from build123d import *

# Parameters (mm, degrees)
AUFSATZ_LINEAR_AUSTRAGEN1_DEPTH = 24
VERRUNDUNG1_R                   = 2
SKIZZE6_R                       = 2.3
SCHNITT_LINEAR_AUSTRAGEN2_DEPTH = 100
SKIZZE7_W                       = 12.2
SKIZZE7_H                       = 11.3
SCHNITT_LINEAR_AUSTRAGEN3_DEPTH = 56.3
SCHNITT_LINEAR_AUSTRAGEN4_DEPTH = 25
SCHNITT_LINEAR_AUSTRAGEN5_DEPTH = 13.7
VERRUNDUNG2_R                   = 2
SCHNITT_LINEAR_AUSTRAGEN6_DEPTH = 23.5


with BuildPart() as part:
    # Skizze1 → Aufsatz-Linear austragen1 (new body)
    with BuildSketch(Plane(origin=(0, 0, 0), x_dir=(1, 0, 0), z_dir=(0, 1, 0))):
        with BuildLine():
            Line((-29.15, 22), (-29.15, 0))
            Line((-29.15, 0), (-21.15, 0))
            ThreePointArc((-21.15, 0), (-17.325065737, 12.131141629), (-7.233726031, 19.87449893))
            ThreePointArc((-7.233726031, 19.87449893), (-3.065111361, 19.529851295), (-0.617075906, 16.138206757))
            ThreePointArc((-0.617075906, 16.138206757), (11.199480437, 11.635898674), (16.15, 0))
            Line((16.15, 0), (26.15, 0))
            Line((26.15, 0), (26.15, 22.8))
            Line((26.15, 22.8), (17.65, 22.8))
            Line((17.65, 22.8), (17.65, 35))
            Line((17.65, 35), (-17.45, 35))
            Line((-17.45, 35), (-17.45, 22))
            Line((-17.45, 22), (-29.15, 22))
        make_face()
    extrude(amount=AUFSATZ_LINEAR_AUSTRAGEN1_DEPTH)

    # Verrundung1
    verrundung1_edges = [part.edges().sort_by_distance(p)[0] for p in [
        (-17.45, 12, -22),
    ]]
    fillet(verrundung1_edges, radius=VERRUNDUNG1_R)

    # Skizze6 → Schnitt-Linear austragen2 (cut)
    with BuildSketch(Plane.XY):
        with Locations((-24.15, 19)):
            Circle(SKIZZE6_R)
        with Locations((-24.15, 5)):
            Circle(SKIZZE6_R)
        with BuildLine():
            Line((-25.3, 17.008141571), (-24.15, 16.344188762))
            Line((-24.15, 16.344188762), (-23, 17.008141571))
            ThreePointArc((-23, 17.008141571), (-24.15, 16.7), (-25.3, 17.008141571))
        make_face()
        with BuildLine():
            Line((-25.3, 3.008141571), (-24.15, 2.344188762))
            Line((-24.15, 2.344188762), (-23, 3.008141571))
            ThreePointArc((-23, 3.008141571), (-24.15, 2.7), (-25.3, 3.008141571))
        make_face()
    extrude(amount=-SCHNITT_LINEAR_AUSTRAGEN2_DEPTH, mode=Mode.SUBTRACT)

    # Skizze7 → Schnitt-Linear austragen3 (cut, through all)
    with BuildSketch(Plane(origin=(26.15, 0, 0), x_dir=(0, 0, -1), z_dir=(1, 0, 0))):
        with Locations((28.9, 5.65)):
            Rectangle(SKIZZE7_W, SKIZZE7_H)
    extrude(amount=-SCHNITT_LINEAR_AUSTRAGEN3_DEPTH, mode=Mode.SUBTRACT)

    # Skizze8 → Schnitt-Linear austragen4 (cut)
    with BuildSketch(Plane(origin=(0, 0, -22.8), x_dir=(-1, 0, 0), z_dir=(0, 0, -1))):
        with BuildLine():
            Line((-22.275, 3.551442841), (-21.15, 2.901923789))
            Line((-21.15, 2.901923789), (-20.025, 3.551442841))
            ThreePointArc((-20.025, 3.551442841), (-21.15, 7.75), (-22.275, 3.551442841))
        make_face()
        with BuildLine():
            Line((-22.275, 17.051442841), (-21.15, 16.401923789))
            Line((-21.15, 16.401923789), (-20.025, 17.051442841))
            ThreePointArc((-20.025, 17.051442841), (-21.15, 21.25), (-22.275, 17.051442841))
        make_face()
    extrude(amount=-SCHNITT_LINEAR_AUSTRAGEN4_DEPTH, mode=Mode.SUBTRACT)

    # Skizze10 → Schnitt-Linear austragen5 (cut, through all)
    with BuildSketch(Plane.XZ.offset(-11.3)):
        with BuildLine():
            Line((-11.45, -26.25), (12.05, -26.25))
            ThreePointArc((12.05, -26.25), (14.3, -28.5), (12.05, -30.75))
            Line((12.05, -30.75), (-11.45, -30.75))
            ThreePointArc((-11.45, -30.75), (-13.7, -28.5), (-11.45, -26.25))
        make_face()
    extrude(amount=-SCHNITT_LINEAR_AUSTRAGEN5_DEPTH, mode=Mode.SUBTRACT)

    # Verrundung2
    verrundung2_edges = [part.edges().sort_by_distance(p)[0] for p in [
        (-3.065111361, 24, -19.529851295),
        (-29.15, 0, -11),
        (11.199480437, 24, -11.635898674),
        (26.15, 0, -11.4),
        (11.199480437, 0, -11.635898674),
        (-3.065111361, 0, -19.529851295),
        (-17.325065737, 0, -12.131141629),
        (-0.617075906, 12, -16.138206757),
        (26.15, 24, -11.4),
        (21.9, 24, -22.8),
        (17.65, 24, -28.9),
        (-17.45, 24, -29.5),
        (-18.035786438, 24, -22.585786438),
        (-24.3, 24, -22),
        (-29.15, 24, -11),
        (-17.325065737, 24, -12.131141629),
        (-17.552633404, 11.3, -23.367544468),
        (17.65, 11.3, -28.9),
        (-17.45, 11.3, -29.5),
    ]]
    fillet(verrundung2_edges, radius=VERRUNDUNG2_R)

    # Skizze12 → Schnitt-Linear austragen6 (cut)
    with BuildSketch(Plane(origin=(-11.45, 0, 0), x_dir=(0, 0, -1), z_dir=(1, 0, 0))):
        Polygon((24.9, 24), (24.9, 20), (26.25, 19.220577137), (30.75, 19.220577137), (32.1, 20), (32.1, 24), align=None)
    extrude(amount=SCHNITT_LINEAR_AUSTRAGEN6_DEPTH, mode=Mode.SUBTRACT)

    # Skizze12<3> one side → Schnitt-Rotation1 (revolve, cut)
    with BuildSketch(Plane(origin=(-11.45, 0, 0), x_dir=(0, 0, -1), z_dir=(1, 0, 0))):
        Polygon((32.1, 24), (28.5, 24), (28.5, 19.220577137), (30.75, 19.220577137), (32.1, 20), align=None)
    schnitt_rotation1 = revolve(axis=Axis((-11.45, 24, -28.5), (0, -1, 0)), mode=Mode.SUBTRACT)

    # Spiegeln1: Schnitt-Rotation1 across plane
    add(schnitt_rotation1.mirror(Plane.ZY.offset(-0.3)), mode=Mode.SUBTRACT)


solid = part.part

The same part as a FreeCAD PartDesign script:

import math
import FreeCAD as App
import Part
import Sketcher

V = App.Vector
Q = App.Units.Quantity


def edges_at(feature, points):
    """Names of the edges that pass closest to the given points."""
    edges = feature.Shape.Edges
    near = lambda p: min(range(len(edges)), key=lambda i: edges[i].distToShape(Part.Vertex(*p))[0])
    return sorted({f"Edge{near(p) + 1}" for p in points})

doc = App.newDocument("Part")
body = doc.addObject("PartDesign::Body", "Body")

# Sketch on XZ plane
sketch1 = body.newObject("Sketcher::SketchObject", "Sketch")
sketch1.AttachmentSupport = (doc.getObject("XZ_Plane"), [""])
sketch1.MapMode = "FlatFace"
sketch1.addGeometry([
    Part.LineSegment(V(-29.15, -22, 0), V(-29.15, 0, 0)),  # 0
    Part.LineSegment(V(-29.15, 0, 0), V(-21.15, 0, 0)),  # 1
    Part.ArcOfCircle(Part.Circle(V(0, 0, 0), V(0, 0, 1), 21.15), math.radians(180), math.radians(250)),  # 2
    Part.ArcOfCircle(Part.Circle(V(-5.523625, -15.176036, 0), V(0, 0, 1), 5), math.radians(-110), math.radians(-11.094875)),  # 3
    Part.ArcOfCircle(Part.Circle(V(0, 0, 0), V(0, 0, 1), 16.15), math.radians(-92.189749), math.radians(0)),  # 4
    Part.LineSegment(V(16.15, 0, 0), V(26.15, 0, 0)),  # 5
    Part.LineSegment(V(26.15, 0, 0), V(26.15, -22.8, 0)),  # 6
    Part.LineSegment(V(26.15, -22.8, 0), V(17.65, -22.8, 0)),  # 7
    Part.LineSegment(V(17.65, -22.8, 0), V(17.65, -35, 0)),  # 8
    Part.LineSegment(V(17.65, -35, 0), V(-17.45, -35, 0)),  # 9
    Part.LineSegment(V(-17.45, -35, 0), V(-17.45, -22, 0)),  # 10
    Part.LineSegment(V(-17.45, -22, 0), V(-29.15, -22, 0)),  # 11
], False)
sketch1.addConstraint([
    Sketcher.Constraint("Coincident", 0, 2, 1, 1),
    Sketcher.Constraint("Coincident", 1, 2, 2, 1),
    Sketcher.Constraint("Tangent", 2, 2, 3, 1),
    Sketcher.Constraint("Coincident", 3, 2, 4, 1),
    Sketcher.Constraint("Coincident", 4, 2, 5, 1),
    Sketcher.Constraint("Coincident", 5, 2, 6, 1),
    Sketcher.Constraint("Coincident", 6, 2, 7, 1),
    Sketcher.Constraint("Coincident", 7, 2, 8, 1),
    Sketcher.Constraint("Coincident", 8, 2, 9, 1),
    Sketcher.Constraint("Coincident", 9, 2, 10, 1),
    Sketcher.Constraint("Coincident", 10, 2, 11, 1),
    Sketcher.Constraint("Coincident", 11, 2, 0, 1),
    Sketcher.Constraint("Vertical", 0),
    Sketcher.Constraint("Horizontal", 1),
    Sketcher.Constraint("Horizontal", 5),
    Sketcher.Constraint("Vertical", 6),
    Sketcher.Constraint("Horizontal", 7),
    Sketcher.Constraint("Vertical", 8),
    Sketcher.Constraint("Horizontal", 9),
    Sketcher.Constraint("Vertical", 10),
    Sketcher.Constraint("Horizontal", 11),
    Sketcher.Constraint("Coincident", 2, 3, -1, 1),
    Sketcher.Constraint("Coincident", 4, 3, -1, 1),
    Sketcher.Constraint("PointOnObject", 0, 2, -1),
    Sketcher.Constraint("PointOnObject", 4, 2, -1),
    Sketcher.Constraint("Radius", 3, 5.0),
    Sketcher.Constraint("DistanceX", 1, 1, 1, 2, 8.0),
    Sketcher.Constraint("DistanceX", 5, 1, 5, 2, 10.0),
    Sketcher.Constraint("DistanceY", 0, 1, 0, 2, 22.0),
    Sketcher.Constraint("DistanceY", 10, 1, 10, 2, 13.0),
    Sketcher.Constraint("Radius", 2, 21.15),
    Sketcher.Constraint("Radius", 4, 16.15),
    Sketcher.Constraint("DistanceX", 7, 2, 7, 1, 8.5),
    Sketcher.Constraint("DistanceX", 9, 2, 9, 1, 35.1),
    Sketcher.Constraint("DistanceY", 6, 2, 6, 1, 22.8),
    Sketcher.Constraint("DistanceY", 2, 2, -1, 1, 19.874499),
])
pad1 = body.newObject("PartDesign::Pad", "Pad")
pad1.Profile = sketch1
pad1.Length = 24
pad1.Reversed = True
doc.recompute()

fillet = body.newObject("PartDesign::Fillet", "Fillet")
fillet.Base = (pad1, edges_at(pad1, [(-17.45, 12, -22)]))
fillet.Radius = 2

# Sketch on XY plane
sketch2 = body.newObject("Sketcher::SketchObject", "Sketch001")
sketch2.AttachmentSupport = (doc.getObject("XY_Plane"), [""])
sketch2.MapMode = "FlatFace"
sketch2.addGeometry([
    Part.LineSegment(V(-25.3, 17.008142, 0), V(-24.15, 16.344189, 0)),  # 0
    Part.LineSegment(V(-24.15, 16.344189, 0), V(-23, 17.008142, 0)),  # 1
    Part.ArcOfCircle(Part.Circle(V(-24.15, 19, 0), V(0, 0, 1), 2.3), math.radians(-60), math.radians(240)),  # 2
    Part.LineSegment(V(-25.3, 3.008142, 0), V(-24.15, 2.344189, 0)),  # 3
    Part.LineSegment(V(-24.15, 2.344189, 0), V(-23, 3.008142, 0)),  # 4
    Part.ArcOfCircle(Part.Circle(V(-24.15, 5, 0), V(0, 0, 1), 2.3), math.radians(-60), math.radians(240)),  # 5
], False)
sketch2.addConstraint([
    Sketcher.Constraint("Coincident", 0, 2, 1, 1),
    Sketcher.Constraint("Tangent", 1, 2, 2, 1),
    Sketcher.Constraint("Tangent", 2, 2, 0, 1),
    Sketcher.Constraint("Coincident", 3, 2, 4, 1),
    Sketcher.Constraint("Tangent", 4, 2, 5, 1),
    Sketcher.Constraint("Tangent", 5, 2, 3, 1),
    Sketcher.Constraint("Equal", 2, 5),
    Sketcher.Constraint("Parallel", 0, 3),
    Sketcher.Constraint("Parallel", 1, 4),
    Sketcher.Constraint("Horizontal", 1, 2, 2, 2),
    Sketcher.Constraint("Vertical", 2, 3, 5, 3),
    Sketcher.Constraint("Radius", 2, 2.3),
    Sketcher.Constraint("Angle", 0, Q("-30 deg")),
    Sketcher.Constraint("DistanceY", -1, 1, 2, 3, 19.0),
    Sketcher.Constraint("DistanceY", -1, 1, 5, 3, 5.0),
    Sketcher.Constraint("DistanceX", 1, 2, -1, 1, 23.0),
])
pocket1 = body.newObject("PartDesign::Pocket", "Pocket")
pocket1.Profile = sketch2
pocket1.Length = 100

# Sketch on YZ plane
sketch3 = body.newObject("Sketcher::SketchObject", "Sketch002")
sketch3.AttachmentSupport = (doc.getObject("YZ_Plane"), [""])
sketch3.MapMode = "FlatFace"
sketch3.AttachmentOffset = App.Placement(V(0, 0, 26.15), App.Rotation())
sketch3.addGeometry([
    Part.LineSegment(V(11.3, -22.8, 0), V(0, -22.8, 0)),
    Part.LineSegment(V(0, -22.8, 0), V(0, -35, 0)),
    Part.LineSegment(V(0, -35, 0), V(11.3, -35, 0)),
    Part.LineSegment(V(11.3, -35, 0), V(11.3, -22.8, 0)),
], False)
sketch3.addConstraint([
    Sketcher.Constraint("Coincident", 0, 2, 1, 1),
    Sketcher.Constraint("Coincident", 1, 2, 2, 1),
    Sketcher.Constraint("Coincident", 2, 2, 3, 1),
    Sketcher.Constraint("Coincident", 3, 2, 0, 1),
    Sketcher.Constraint("Horizontal", 0),
    Sketcher.Constraint("Vertical", 1),
    Sketcher.Constraint("Horizontal", 2),
    Sketcher.Constraint("Vertical", 3),
    Sketcher.Constraint("PointOnObject", 0, 2, -2),
    Sketcher.Constraint("DistanceX", 0, 2, 0, 1, 11.3),
    Sketcher.Constraint("DistanceY", 1, 2, 1, 1, 12.2),
    Sketcher.Constraint("DistanceY", 1, 2, -1, 1, 35.0),
])
pocket2 = body.newObject("PartDesign::Pocket", "Pocket001")
pocket2.Profile = sketch3
pocket2.Type = "ThroughAll"

# Sketch on XY plane
sketch4 = body.newObject("Sketcher::SketchObject", "Sketch003")
sketch4.AttachmentSupport = (doc.getObject("XY_Plane"), [""])
sketch4.MapMode = "FlatFace"
sketch4.AttachmentOffset = App.Placement(V(0, 0, -22.8), App.Rotation())
sketch4.addGeometry([
    Part.LineSegment(V(22.275, 3.551443, 0), V(21.15, 2.901924, 0)),  # 0
    Part.LineSegment(V(21.15, 2.901924, 0), V(20.025, 3.551443, 0)),  # 1
    Part.ArcOfCircle(Part.Circle(V(21.15, 5.5, 0), V(0, 0, 1), 2.25), math.radians(-60), math.radians(240)),  # 2
    Part.LineSegment(V(22.275, 17.051443, 0), V(21.15, 16.401924, 0)),  # 3
    Part.LineSegment(V(21.15, 16.401924, 0), V(20.025, 17.051443, 0)),  # 4
    Part.ArcOfCircle(Part.Circle(V(21.15, 19, 0), V(0, 0, 1), 2.25), math.radians(-60), math.radians(240)),  # 5
], False)
sketch4.addConstraint([
    Sketcher.Constraint("Coincident", 0, 2, 1, 1),
    Sketcher.Constraint("Tangent", 1, 2, 2, 2),
    Sketcher.Constraint("Tangent", 2, 1, 0, 1),
    Sketcher.Constraint("Coincident", 3, 2, 4, 1),
    Sketcher.Constraint("Tangent", 4, 2, 5, 2),
    Sketcher.Constraint("Tangent", 5, 1, 3, 1),
    Sketcher.Constraint("Equal", 2, 5),
    Sketcher.Constraint("Parallel", 0, 3),
    Sketcher.Constraint("Parallel", 1, 4),
    Sketcher.Constraint("Horizontal", 1, 2, 2, 1),
    Sketcher.Constraint("Vertical", 2, 3, 5, 3),
    Sketcher.Constraint("Angle", 0, Q("-150 deg")),
    Sketcher.Constraint("Radius", 2, 2.25),
    Sketcher.Constraint("DistanceY", -1, 1, 5, 3, 19.0),
    Sketcher.Constraint("DistanceY", -1, 1, 2, 3, 5.5),
    Sketcher.Constraint("DistanceX", -1, 1, 2, 3, 21.15),
])
pocket3 = body.newObject("PartDesign::Pocket", "Pocket002")
pocket3.Profile = sketch4
pocket3.Length = 25
pocket3.Reversed = True

# Sketch on XZ plane
sketch5 = body.newObject("Sketcher::SketchObject", "Sketch004")
sketch5.AttachmentSupport = (doc.getObject("XZ_Plane"), [""])
sketch5.MapMode = "FlatFace"
sketch5.AttachmentOffset = App.Placement(V(0, 0, -11.3), App.Rotation())
sketch5.addGeometry([
    Part.LineSegment(V(12.05, -26.25, 0), V(-11.45, -26.25, 0)),
    Part.ArcOfCircle(Part.Circle(V(-11.45, -28.5, 0), V(0, 0, 1), 2.25), math.radians(90), math.radians(270)),
    Part.LineSegment(V(-11.45, -30.75, 0), V(12.05, -30.75, 0)),
    Part.ArcOfCircle(Part.Circle(V(12.05, -28.5, 0), V(0, 0, 1), 2.25), math.radians(-90), math.radians(90)),
], False)
sketch5.addConstraint([
    Sketcher.Constraint("Tangent", 0, 2, 1, 1),
    Sketcher.Constraint("Tangent", 1, 2, 2, 1),
    Sketcher.Constraint("Tangent", 2, 2, 3, 1),
    Sketcher.Constraint("Tangent", 3, 2, 0, 1),
    Sketcher.Constraint("Horizontal", 0),
    Sketcher.Constraint("Horizontal", 2),
    Sketcher.Constraint("Radius", 1, 2.25),
    Sketcher.Constraint("DistanceX", 0, 2, 0, 1, 23.5),
    Sketcher.Constraint("DistanceY", 1, 3, -1, 1, 28.5),
    Sketcher.Constraint("DistanceX", 1, 3, -1, 1, 11.45),
])
pocket4 = body.newObject("PartDesign::Pocket", "Pocket003")
pocket4.Profile = sketch5
pocket4.Type = "ThroughAll"
doc.recompute()

fillet2 = body.newObject("PartDesign::Fillet", "Fillet001")
fillet2.Base = (pocket4, edges_at(pocket4, [
    (-3.065, 24, -19.53),
    (-29.15, 0, -11),
    (11.199, 24, -11.636),
    (26.15, 0, -11.4),
    (11.199, 0, -11.636),
    (-3.065, 0, -19.53),
    (-17.325, 0, -12.131),
    (-0.617, 12, -16.138),
    (26.15, 24, -11.4),
    (21.9, 24, -22.8),
    (17.65, 24, -28.9),
    (-17.45, 24, -29.5),
    (-18.036, 24, -22.586),
    (-24.3, 24, -22),
    (-29.15, 24, -11),
    (-17.325, 24, -12.131),
    (-17.553, 11.3, -23.368),
    (17.65, 11.3, -28.9),
    (-17.45, 11.3, -29.5),
]))
fillet2.Radius = 2

# Sketch on YZ plane
sketch6 = body.newObject("Sketcher::SketchObject", "Sketch005")
sketch6.AttachmentSupport = (doc.getObject("YZ_Plane"), [""])
sketch6.MapMode = "FlatFace"
sketch6.AttachmentOffset = App.Placement(V(0, 0, -11.45), App.Rotation())
sketch6.addGeometry([
    Part.LineSegment(V(24, -24.9, 0), V(20, -24.9, 0)),  # 0
    Part.LineSegment(V(20, -24.9, 0), V(19.220577, -26.25, 0)),  # 1
    Part.LineSegment(V(19.220577, -26.25, 0), V(19.220577, -30.75, 0)),  # 2
    Part.LineSegment(V(19.220577, -30.75, 0), V(20, -32.1, 0)),  # 3
    Part.LineSegment(V(20, -32.1, 0), V(24, -32.1, 0)),  # 4
    Part.LineSegment(V(24, -32.1, 0), V(24, -24.9, 0)),  # 5
], False)
sketch6.addConstraint([
    Sketcher.Constraint("Coincident", 0, 2, 1, 1),
    Sketcher.Constraint("Coincident", 1, 2, 2, 1),
    Sketcher.Constraint("Coincident", 2, 2, 3, 1),
    Sketcher.Constraint("Coincident", 3, 2, 4, 1),
    Sketcher.Constraint("Coincident", 4, 2, 5, 1),
    Sketcher.Constraint("Coincident", 5, 2, 0, 1),
    Sketcher.Constraint("Horizontal", 0),
    Sketcher.Constraint("Vertical", 2),
    Sketcher.Constraint("Horizontal", 4),
    Sketcher.Constraint("Vertical", 5),
    Sketcher.Constraint("Vertical", 0, 2, 3, 2),
    Sketcher.Constraint("Equal", 1, 3),
    Sketcher.Constraint("DistanceX", 0, 2, 0, 1, 4.0),
    Sketcher.Constraint("Angle", 1, Q("-120 deg")),
    Sketcher.Constraint("DistanceY", 2, 2, 2, 1, 4.5),
    Sketcher.Constraint("DistanceY", 5, 1, 5, 2, 7.2),
    Sketcher.Constraint("DistanceX", -1, 1, 0, 2, 20.0),
    Sketcher.Constraint("DistanceY", 0, 2, -1, 1, 24.9),
])
pocket5 = body.newObject("PartDesign::Pocket", "Pocket004")
pocket5.Profile = sketch6
pocket5.Length = 23.5
pocket5.Reversed = True

# Sketch on YZ plane
sketch7 = body.newObject("Sketcher::SketchObject", "Sketch006")
sketch7.AttachmentSupport = (doc.getObject("YZ_Plane"), [""])
sketch7.MapMode = "FlatFace"
sketch7.AttachmentOffset = App.Placement(V(0, 0, -11.45), App.Rotation())
sketch7.addGeometry([
    Part.LineSegment(V(24, -32.1, 0), V(24, -28.5, 0)),  # 0
    Part.LineSegment(V(24, -28.5, 0), V(19.220577, -28.5, 0)),  # 1
    Part.LineSegment(V(19.220577, -28.5, 0), V(19.220577, -30.75, 0)),  # 2
    Part.LineSegment(V(19.220577, -30.75, 0), V(20, -32.1, 0)),  # 3
    Part.LineSegment(V(20, -32.1, 0), V(24, -32.1, 0)),  # 4
], False)
sketch7.addGeometry(Part.LineSegment(V(24, -28.5, 0), V(19.220577, -28.5, 0)), True)  # axis
sketch7.addConstraint([
    Sketcher.Constraint("Coincident", 0, 2, 1, 1),
    Sketcher.Constraint("Coincident", 1, 2, 2, 1),
    Sketcher.Constraint("Coincident", 2, 2, 3, 1),
    Sketcher.Constraint("Coincident", 3, 2, 4, 1),
    Sketcher.Constraint("Coincident", 4, 2, 0, 1),
    Sketcher.Constraint("Vertical", 0),
    Sketcher.Constraint("Horizontal", 1),
    Sketcher.Constraint("Vertical", 2),
    Sketcher.Constraint("Horizontal", 4),
    Sketcher.Constraint("Horizontal", 5),
    Sketcher.Constraint("Coincident", 5, 1, 0, 2),
    Sketcher.Constraint("Vertical", 2, 2, 5, 2),
    Sketcher.Constraint("DistanceX", 4, 1, 4, 2, 4.0),
    Sketcher.Constraint("Angle", 3, Q("-60 deg")),
    Sketcher.Constraint("DistanceY", 0, 1, 0, 2, 3.6),
    Sketcher.Constraint("DistanceX", -1, 1, 0, 2, 24.0),
    Sketcher.Constraint("DistanceY", 2, 2, 2, 1, 2.25),
    Sketcher.Constraint("DistanceY", 0, 2, -1, 1, 28.5),
])
groove = body.newObject("PartDesign::Groove", "Groove")
groove.Profile = sketch7
groove.ReferenceAxis = (sketch7, ["Axis0"])
groove.Angle = 360
doc.recompute()

datumplane = body.newObject("PartDesign::Plane", "DatumPlane")
datumplane.AttachmentSupport = (doc.getObject("YZ_Plane"), [""])
datumplane.MapMode = "FlatFace"
datumplane.AttachmentOffset = App.Placement(V(0, 0, 0.3), App.Rotation())
mirrored = body.newObject("PartDesign::Mirrored", "Mirrored")
mirrored.Originals = [groove]
mirrored.MirrorPlane = (datumplane, [""])
body.Tip = mirrored

doc.recompute()
